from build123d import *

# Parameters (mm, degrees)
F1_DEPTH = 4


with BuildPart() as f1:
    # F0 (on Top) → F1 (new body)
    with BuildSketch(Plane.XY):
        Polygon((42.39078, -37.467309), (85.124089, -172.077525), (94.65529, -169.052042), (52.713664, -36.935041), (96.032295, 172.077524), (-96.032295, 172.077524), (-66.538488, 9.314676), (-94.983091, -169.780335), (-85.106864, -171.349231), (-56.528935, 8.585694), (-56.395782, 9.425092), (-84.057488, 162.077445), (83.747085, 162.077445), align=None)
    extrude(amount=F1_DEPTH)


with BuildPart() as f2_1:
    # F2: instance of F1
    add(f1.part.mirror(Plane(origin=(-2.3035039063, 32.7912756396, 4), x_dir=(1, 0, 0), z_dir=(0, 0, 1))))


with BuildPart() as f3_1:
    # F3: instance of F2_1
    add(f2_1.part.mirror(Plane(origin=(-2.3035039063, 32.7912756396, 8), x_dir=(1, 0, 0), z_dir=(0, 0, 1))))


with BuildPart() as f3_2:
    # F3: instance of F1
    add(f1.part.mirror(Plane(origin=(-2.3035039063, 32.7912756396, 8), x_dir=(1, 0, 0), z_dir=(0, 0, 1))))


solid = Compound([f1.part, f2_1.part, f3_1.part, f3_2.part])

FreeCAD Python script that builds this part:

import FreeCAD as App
import Part
import Sketcher

V = App.Vector
Q = App.Units.Quantity

doc = App.newDocument("Part")
body = doc.addObject("PartDesign::Body", "Body")

# Sketch on XY plane
sketch1 = body.newObject("Sketcher::SketchObject", "Sketch")
sketch1.AttachmentSupport = (doc.getObject("XY_Plane"), [""])
sketch1.MapMode = "FlatFace"
sketch1.addGeometry(Part.LineSegment(V(42.39078, -37.467309, 0), V(85.124089, -172.077525, 0)), False)
sketch1.addGeometry(Part.LineSegment(V(85.124089, -172.077525, 0), V(94.65529, -169.052042, 0)), False)
sketch1.addGeometry(Part.LineSegment(V(94.65529, -169.052042, 0), V(52.713664, -36.935041, 0)), False)
sketch1.addGeometry(Part.LineSegment(V(52.713664, -36.935041, 0), V(96.032295, 172.077524, 0)), False)
sketch1.addGeometry(Part.LineSegment(V(96.032295, 172.077524, 0), V(-96.032295, 172.077524, 0)), False)
sketch1.addGeometry(Part.LineSegment(V(-96.032295, 172.077524, 0), V(-66.538488, 9.314676, 0)), False)
sketch1.addGeometry(Part.LineSegment(V(-66.538488, 9.314676, 0), V(-94.983091, -169.780335, 0)), False)
sketch1.addGeometry(Part.LineSegment(V(-94.983091, -169.780335, 0), V(-85.106864, -171.349231, 0)), False)
sketch1.addGeometry(Part.LineSegment(V(-85.106864, -171.349231, 0), V(-56.528935, 8.585694, 0)), False)
sketch1.addGeometry(Part.LineSegment(V(-56.528935, 8.585694, 0), V(-56.395782, 9.425092, 0)), False)
sketch1.addGeometry(Part.LineSegment(V(-56.395782, 9.425092, 0), V(-84.057488, 162.077445, 0)), False)
sketch1.addGeometry(Part.LineSegment(V(-84.057488, 162.077445, 0), V(83.747085, 162.077445, 0)), False)
sketch1.addGeometry(Part.LineSegment(V(83.747085, 162.077445, 0), V(42.39078, -37.467309, 0)), False)
sketch1.addConstraint(Sketcher.Constraint("Coincident", 0, 2, 1, 1))
sketch1.addConstraint(Sketcher.Constraint("Coincident", 1, 2, 2, 1))
sketch1.addConstraint(Sketcher.Constraint("Coincident", 2, 2, 3, 1))
sketch1.addConstraint(Sketcher.Constraint("Coincident", 3, 2, 4, 1))
sketch1.addConstraint(Sketcher.Constraint("Coincident", 4, 2, 5, 1))
sketch1.addConstraint(Sketcher.Constraint("Coincident", 5, 2, 6, 1))
sketch1.addConstraint(Sketcher.Constraint("Coincident", 6, 2, 7, 1))
sketch1.addConstraint(Sketcher.Constraint("Coincident", 7, 2, 8, 1))
sketch1.addConstraint(Sketcher.Constraint("Coincident", 8, 2, 9, 1))
sketch1.addConstraint(Sketcher.Constraint("Coincident", 9, 2, 10, 1))
sketch1.addConstraint(Sketcher.Constraint("Coincident", 10, 2, 11, 1))
sketch1.addConstraint(Sketcher.Constraint("Coincident", 11, 2, 12, 1))
sketch1.addConstraint(Sketcher.Constraint("Coincident", 12, 2, 0, 1))
sketch1.addConstraint(Sketcher.Constraint("Horizontal", 4))
sketch1.addConstraint(Sketcher.Constraint("Horizontal", 11))
sketch1.addConstraint(Sketcher.Constraint("DistanceY", 1, 2, 2, 2, Q("132.117001 mm")))
sketch1.addConstraint(Sketcher.Constraint("DistanceX", 10, 2, 5, 2, Q("17.519 mm")))
sketch1.addConstraint(Sketcher.Constraint("DistanceX", 4, 2, 4, 1, Q("192.06459 mm")))
sketch1.addConstraint(Sketcher.Constraint("DistanceX", 0, 2, 1, 2, Q("9.531201 mm")))
sketch1.addConstraint(Sketcher.Constraint("DistanceY", 0, 2, 5, 2, Q("181.392201 mm")))
sketch1.addConstraint(Sketcher.Constraint("DistanceX", 8, 2, 2, 2, Q("109.242599 mm")))
sketch1.addConstraint(Sketcher.Constraint("DistanceY", 12, 2, 9, 2, Q("46.892401 mm")))
sketch1.addConstraint(Sketcher.Constraint("Distance", 0, Q("141.230471 mm")))
sketch1.addConstraint(Sketcher.Constraint("Distance", 2, Q("138.614581 mm")))
sketch1.addConstraint(Sketcher.Constraint("Distance", 5, Q("165.41351 mm")))
sketch1.addConstraint(Sketcher.Constraint("Distance", 10, Q("155.13836 mm")))
sketch1.addConstraint(Sketcher.Constraint("Distance", 12, Q("203.785311 mm")))
sketch1.addConstraint(Sketcher.Constraint("DistanceX", 11, 1, 11, 2, Q("167.804573 mm")))
sketch1.addConstraint(Sketcher.Constraint("DistanceX", -1, 1, 0, 2, Q("85.124089 mm")))
sketch1.addConstraint(Sketcher.Constraint("DistanceY", 1, 2, -1, 1, Q("169.052042 mm")))
sketch1.addConstraint(Sketcher.Constraint("DistanceX", 5, 2, -1, 1, Q("66.538488 mm")))
sketch1.addConstraint(Sketcher.Constraint("DistanceX", 6, 2, -1, 1, Q("94.983091 mm")))
sketch1.addConstraint(Sketcher.Constraint("DistanceY", 7, 2, -1, 1, Q("171.349231 mm")))
sketch1.addConstraint(Sketcher.Constraint("DistanceX", 9, 2, -1, 1, Q("56.395782 mm")))
sketch1.addConstraint(Sketcher.Constraint("DistanceY", -1, 1, 9, 2, Q("9.425092 mm")))
sketch1.addConstraint(Sketcher.Constraint("DistanceX", 2, 2, 3, 2, Q("43.318631 mm")))
sketch1.addConstraint(Sketcher.Constraint("DistanceY", 0, 2, 6, 2, Q("2.29719 mm")))
sketch1.addConstraint(Sketcher.Constraint("DistanceX", 7, 2, 2, 2, Q("137.820528 mm")))
sketch1.addConstraint(Sketcher.Constraint("DistanceY", 8, 2, 4, 2, Q("163.49183 mm")))
pad1 = body.newObject("PartDesign::Pad", "Pad")
pad1.Profile = sketch1
pad1.Length = 4
body2 = doc.addObject("PartDesign::Body", "Body001")
doc.recompute()

mirroring = doc.addObject("Part::Mirroring", "Mirroring")
mirroring.Source = body
mirroring.Base = V(-2.303504, 32.791276, 4)
mirroring.Normal = V(0, 0, 1)
body2.BaseFeature = mirroring
doc.recompute()
body3 = doc.addObject("PartDesign::Body", "Body002")
doc.recompute()

mirroring2 = doc.addObject("Part::Mirroring", "Mirroring001")
mirroring2.Source = body2
mirroring2.Base = V(-2.303504, 32.791276, 8)
mirroring2.Normal = V(0, 0, 1)
body3.BaseFeature = mirroring2
doc.recompute()
body4 = doc.addObject("PartDesign::Body", "Body003")
doc.recompute()

mirroring3 = doc.addObject("Part::Mirroring", "Mirroring002")
mirroring3.Source = body
mirroring3.Base = V(-2.303504, 32.791276, 8)
mirroring3.Normal = V(0, 0, 1)
body4.BaseFeature = mirroring3
doc.recompute()
mirroring.Visibility = False
mirroring2.Visibility = False
mirroring3.Visibility = False

doc.recompute()
